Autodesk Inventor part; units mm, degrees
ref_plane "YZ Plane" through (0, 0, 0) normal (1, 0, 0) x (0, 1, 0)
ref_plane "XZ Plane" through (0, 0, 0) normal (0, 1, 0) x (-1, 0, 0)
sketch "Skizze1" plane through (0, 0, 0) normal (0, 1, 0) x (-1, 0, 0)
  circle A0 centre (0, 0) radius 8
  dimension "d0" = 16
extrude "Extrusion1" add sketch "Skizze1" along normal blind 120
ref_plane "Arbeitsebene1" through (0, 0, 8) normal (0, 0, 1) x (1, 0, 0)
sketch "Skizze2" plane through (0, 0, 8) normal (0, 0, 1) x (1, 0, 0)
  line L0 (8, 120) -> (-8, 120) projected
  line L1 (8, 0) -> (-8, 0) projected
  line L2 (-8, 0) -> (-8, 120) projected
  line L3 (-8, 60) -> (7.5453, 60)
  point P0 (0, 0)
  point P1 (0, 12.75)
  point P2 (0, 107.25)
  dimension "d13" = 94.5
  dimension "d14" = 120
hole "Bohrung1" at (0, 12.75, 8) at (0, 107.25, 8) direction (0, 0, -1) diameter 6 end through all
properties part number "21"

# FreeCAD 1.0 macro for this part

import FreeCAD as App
import Part
import Sketcher
Q = App.Units.Quantity

doc = App.newDocument("Part")
params = doc.addObject("Spreadsheet::Sheet", "Params")
for row, (alias, value) in enumerate([
    ("sketch1_diameter", "16 mm"),
    ("pad1_length", "120 mm"),
    ("sketch2_diameter", "6 mm"),
    ("hole_diameter", "6 mm"),
], start=1):
    params.set(f"A{row}", alias)
    params.set(f"B{row}", "=" + value)
    params.setAlias(f"B{row}", alias)

body = doc.addObject("PartDesign::Body", "Body")

# Sketch on XZ plane
sketch1 = body.newObject("Sketcher::SketchObject", "Sketch")
sketch1.AttachmentSupport = (doc.getObject("XZ_Plane"), [""])
sketch1.MapMode = "FlatFace"
sketch1.addGeometry(Part.Circle(App.Vector(0, 0, 0), App.Vector(0, 0, 1), 8), False)
sketch1.addConstraint([
    Sketcher.Constraint("Coincident", 0, 3, -1, 1),
    Sketcher.Constraint("Diameter", 0, Q("16 mm")),
])
sketch1.setExpression("Constraints[1]", "Params.sketch1_diameter")
pad1 = body.newObject("PartDesign::Pad", "Pad")
pad1.Profile = sketch1
pad1.setExpression("Length", "Params.pad1_length")
pad1.Reversed = True

# Sketch on XY plane
sketch2 = body.newObject("Sketcher::SketchObject", "Sketch001")
sketch2.AttachmentSupport = (doc.getObject("XY_Plane"), [""])
sketch2.MapMode = "FlatFace"
sketch2.AttachmentOffset = App.Placement(App.Vector(0, 0, 8), App.Rotation())
sketch2.addGeometry([
    Part.Circle(App.Vector(0, 12.75, 0), App.Vector(0, 0, 1), 3),
    Part.Circle(App.Vector(0, 107.25, 0), App.Vector(0, 0, 1), 3),
], False)
sketch2.addConstraint([
    Sketcher.Constraint("Equal", 0, 1),
    Sketcher.Constraint("PointOnObject", 0, 3, -2),
    Sketcher.Constraint("PointOnObject", 1, 3, -2),
    Sketcher.Constraint("Diameter", 0, Q("6 mm")),
    Sketcher.Constraint("DistanceY", 0, 3, 1, 3, Q("94.5 mm")),
    Sketcher.Constraint("DistanceY", -1, 1, 0, 3, Q("12.75 mm")),
])
sketch2.setExpression("Constraints[3]", "Params.sketch2_diameter")
doc.recompute()
hole = body.newObject("PartDesign::Hole", "Hole")
hole.Profile = sketch2
hole.ThreadType = "None"
hole.setExpression("Diameter", "Params.hole_diameter")
hole.DepthType = "ThroughAll"

doc.recompute()
